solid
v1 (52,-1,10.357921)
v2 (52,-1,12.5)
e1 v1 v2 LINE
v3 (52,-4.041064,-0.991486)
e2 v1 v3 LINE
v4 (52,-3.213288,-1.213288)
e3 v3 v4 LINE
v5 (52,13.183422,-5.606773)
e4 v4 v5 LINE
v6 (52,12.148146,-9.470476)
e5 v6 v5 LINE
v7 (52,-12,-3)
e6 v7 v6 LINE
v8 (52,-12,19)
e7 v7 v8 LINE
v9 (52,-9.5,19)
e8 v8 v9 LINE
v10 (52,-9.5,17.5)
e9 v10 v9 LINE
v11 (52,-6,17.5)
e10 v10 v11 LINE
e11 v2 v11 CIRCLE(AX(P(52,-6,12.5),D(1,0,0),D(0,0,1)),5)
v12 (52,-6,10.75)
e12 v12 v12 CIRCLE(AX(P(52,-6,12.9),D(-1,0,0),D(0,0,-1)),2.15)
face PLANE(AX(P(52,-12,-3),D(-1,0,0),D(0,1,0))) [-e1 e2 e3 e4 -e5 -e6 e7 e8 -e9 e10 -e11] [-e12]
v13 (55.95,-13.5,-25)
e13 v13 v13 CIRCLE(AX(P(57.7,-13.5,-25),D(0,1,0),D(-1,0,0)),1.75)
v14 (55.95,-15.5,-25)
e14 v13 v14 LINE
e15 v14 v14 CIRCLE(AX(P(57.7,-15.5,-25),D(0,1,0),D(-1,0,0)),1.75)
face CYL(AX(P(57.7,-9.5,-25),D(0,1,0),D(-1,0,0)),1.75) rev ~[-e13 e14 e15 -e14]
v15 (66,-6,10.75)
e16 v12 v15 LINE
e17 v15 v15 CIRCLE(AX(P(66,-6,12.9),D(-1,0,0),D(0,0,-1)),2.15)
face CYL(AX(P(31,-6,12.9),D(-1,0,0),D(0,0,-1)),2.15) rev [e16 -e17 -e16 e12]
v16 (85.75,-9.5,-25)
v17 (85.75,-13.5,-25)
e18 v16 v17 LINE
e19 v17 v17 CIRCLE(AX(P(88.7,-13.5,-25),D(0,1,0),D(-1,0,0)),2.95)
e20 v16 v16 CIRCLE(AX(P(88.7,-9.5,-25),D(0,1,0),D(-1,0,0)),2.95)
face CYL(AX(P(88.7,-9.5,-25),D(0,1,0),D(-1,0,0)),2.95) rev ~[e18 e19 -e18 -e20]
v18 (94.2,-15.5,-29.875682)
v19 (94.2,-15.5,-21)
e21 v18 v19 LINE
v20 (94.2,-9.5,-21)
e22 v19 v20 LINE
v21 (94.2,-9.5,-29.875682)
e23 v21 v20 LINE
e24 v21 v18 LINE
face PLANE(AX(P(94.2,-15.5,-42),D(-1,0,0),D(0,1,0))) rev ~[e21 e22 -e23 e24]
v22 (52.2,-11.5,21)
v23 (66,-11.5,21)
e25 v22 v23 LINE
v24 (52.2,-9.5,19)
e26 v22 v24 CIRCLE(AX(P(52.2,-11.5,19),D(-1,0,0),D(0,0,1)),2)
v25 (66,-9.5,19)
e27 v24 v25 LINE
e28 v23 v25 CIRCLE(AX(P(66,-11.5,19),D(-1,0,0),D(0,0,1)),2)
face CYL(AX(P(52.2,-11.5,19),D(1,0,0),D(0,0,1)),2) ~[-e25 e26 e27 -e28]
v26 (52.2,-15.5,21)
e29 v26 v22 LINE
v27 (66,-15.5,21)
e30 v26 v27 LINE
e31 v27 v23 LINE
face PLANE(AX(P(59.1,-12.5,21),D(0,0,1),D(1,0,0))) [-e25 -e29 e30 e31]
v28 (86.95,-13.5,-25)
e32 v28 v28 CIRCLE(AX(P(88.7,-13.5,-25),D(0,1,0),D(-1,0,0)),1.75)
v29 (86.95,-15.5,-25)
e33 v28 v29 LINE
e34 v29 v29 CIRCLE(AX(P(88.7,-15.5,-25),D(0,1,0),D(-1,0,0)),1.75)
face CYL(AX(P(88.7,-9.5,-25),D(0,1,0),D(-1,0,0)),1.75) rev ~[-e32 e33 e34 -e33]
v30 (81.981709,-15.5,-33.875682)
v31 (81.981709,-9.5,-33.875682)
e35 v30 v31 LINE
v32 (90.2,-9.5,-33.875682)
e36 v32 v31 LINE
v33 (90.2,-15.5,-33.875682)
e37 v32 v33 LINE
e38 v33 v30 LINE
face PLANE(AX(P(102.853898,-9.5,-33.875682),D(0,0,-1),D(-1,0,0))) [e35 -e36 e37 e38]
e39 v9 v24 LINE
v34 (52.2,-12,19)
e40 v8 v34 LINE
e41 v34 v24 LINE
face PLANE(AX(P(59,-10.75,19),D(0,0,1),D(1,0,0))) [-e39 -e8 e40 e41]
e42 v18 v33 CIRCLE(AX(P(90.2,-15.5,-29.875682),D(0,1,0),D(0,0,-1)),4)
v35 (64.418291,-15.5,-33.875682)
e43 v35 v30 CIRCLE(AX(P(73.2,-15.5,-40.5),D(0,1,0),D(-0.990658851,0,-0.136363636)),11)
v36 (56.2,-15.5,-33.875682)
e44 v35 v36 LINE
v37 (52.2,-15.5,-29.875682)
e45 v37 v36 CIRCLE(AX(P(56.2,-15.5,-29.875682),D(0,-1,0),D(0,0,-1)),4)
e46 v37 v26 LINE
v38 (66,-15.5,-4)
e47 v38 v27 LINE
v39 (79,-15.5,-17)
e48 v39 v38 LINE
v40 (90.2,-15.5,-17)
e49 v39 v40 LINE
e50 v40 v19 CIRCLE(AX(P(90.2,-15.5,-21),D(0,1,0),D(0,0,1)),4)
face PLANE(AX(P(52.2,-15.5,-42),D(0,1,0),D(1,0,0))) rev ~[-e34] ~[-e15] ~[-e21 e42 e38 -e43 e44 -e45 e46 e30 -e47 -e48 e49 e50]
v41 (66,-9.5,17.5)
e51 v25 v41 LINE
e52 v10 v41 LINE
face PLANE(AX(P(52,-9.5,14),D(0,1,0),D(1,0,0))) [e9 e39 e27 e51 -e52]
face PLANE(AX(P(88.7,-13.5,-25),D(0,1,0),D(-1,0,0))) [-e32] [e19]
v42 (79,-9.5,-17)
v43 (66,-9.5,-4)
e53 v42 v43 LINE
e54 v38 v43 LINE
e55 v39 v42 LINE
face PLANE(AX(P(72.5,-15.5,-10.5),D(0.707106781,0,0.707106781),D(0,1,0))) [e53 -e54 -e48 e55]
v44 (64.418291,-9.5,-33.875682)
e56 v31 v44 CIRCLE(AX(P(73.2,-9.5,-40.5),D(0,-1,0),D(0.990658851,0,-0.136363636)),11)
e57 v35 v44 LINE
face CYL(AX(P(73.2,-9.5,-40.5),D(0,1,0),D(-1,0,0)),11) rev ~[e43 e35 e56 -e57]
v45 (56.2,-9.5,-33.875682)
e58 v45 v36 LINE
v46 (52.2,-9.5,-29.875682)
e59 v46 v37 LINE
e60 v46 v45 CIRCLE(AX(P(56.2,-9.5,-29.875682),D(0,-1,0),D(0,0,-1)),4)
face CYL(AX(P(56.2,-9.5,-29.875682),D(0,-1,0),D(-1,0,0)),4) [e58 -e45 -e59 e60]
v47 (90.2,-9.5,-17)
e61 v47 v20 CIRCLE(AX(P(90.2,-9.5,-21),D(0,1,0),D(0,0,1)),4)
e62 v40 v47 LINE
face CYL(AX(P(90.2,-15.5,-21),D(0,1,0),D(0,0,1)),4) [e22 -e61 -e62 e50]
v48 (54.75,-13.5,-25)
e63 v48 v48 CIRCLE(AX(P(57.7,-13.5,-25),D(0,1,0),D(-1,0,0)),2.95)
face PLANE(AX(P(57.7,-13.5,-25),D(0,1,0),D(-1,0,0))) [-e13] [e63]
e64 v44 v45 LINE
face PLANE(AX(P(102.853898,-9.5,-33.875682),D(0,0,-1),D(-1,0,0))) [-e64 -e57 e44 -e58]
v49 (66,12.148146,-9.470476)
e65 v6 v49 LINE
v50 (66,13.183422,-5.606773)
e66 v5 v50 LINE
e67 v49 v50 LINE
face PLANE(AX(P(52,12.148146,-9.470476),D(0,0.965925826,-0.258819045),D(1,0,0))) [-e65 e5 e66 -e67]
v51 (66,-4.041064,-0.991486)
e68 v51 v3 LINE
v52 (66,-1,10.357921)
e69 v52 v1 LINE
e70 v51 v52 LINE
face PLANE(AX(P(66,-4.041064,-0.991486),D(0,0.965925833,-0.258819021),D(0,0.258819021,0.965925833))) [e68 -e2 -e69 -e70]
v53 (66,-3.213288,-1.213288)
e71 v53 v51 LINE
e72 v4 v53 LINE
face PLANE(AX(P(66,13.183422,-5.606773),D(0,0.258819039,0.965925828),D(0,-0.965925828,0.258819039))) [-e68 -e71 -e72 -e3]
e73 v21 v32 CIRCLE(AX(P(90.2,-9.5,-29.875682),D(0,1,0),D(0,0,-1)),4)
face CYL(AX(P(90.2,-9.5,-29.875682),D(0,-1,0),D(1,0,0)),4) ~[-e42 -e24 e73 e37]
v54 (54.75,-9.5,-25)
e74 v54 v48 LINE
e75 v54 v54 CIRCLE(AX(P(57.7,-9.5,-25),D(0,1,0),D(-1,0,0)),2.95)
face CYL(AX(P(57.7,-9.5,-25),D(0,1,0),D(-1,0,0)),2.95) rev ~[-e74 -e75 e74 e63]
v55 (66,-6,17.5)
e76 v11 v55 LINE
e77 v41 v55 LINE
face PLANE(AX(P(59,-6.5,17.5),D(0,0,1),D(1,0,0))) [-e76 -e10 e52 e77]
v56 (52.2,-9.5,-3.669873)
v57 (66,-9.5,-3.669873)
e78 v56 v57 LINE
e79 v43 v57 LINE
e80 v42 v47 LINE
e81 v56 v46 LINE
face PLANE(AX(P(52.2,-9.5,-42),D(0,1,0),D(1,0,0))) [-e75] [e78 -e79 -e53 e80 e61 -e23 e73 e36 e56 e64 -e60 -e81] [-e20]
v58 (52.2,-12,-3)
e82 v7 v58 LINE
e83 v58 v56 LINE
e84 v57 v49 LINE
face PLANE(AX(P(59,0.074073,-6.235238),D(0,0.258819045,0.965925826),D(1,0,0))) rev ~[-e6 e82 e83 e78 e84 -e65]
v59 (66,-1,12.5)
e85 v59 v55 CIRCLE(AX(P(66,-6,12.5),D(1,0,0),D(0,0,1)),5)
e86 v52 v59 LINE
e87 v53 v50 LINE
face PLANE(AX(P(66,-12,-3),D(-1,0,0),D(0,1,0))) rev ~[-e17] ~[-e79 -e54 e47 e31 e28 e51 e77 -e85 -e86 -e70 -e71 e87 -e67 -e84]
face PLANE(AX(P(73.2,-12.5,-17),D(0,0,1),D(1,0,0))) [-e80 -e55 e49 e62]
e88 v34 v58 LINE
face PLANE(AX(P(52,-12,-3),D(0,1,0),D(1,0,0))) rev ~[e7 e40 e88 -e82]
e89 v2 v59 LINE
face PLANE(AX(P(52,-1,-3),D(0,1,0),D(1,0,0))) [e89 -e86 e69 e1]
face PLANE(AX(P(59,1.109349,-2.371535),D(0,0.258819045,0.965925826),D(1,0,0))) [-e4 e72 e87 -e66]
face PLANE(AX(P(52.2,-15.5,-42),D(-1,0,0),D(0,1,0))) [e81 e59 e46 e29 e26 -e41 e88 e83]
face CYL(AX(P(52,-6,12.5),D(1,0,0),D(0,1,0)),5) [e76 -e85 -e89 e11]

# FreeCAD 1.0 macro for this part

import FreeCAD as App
import Part
import Sketcher

V = App.Vector
Q = App.Units.Quantity


def edges_at(feature, points):
    """Names of the edges that pass closest to the given points."""
    edges = feature.Shape.Edges
    near = lambda p: min(range(len(edges)), key=lambda i: edges[i].distToShape(Part.Vertex(*p))[0])
    return sorted({f"Edge{near(p) + 1}" for p in points})


def add_polygon(sketch, points):
    """Adds a closed chain of lines whose ends are joined by coincident constraints."""
    first, n = sketch.GeometryCount, len(points)
    for a, b in zip(points, points[1:] + points[:1]):
        sketch.addGeometry(Part.LineSegment(App.Vector(*a, 0), App.Vector(*b, 0)), False)
    for i in range(n):
        sketch.addConstraint(Sketcher.Constraint("Coincident", first + i, 2, first + (i + 1) % n, 1))

doc = App.newDocument("Part")
body = doc.addObject("PartDesign::Body", "Body")

sketch1 = doc.addObject("Sketcher::SketchObject", "Sketch")
body.addObject(sketch1)
sketch1.AttachmentSupport = (doc.XY_Plane, [""])
sketch1.MapMode = "FlatFace"
sketch1.addGeometry(Part.Circle(V(0, 0, 0), V(0, 0, 1), 2.1), False)
sketch1.addConstraint(Sketcher.Constraint("Coincident", 0, 3, -1, 1))
sketch1.addConstraint(Sketcher.Constraint("Diameter", 0, Q("4.3 mm")))
pad1 = doc.addObject("PartDesign::Pad", "Pad")
body.addObject(pad1)
pad1.Profile = sketch1
pad1.Length = 50
body2 = doc.addObject("PartDesign::Body", "Body001")
doc.recompute()

body.Placement = App.Placement(V(0, 0, 0), App.Rotation(V(0, 1, 0), 90))
boolean = doc.addObject("PartDesign::Boolean", "Boolean")
body2.addObject(boolean)
boolean.Type = "Fuse"
boolean.addObjects([body])
body3 = doc.addObject("PartDesign::Body", "Body002")
doc.recompute()

body2.Placement = App.Placement(V(31, -6, 12.9), App.Rotation(V(0, 0, 1), 0))
boolean2 = doc.addObject("PartDesign::Boolean", "Boolean001")
body3.addObject(boolean2)
boolean2.Type = "Fuse"
boolean2.addObjects([body2])
body4 = doc.addObject("PartDesign::Body", "Body003")

sketch2 = doc.addObject("Sketcher::SketchObject", "Sketch001")
body4.addObject(sketch2)
sketch2.AttachmentSupport = (doc.getObject("XY_Plane003"), [""])
sketch2.MapMode = "FlatFace"
sketch2.AttachmentOffset = App.Placement(V(0, 0, -3), App.Rotation())
add_polygon(sketch2, [(52, -1), (52, -12), (66, -12), (66, -1)])
sketch2.addConstraint(Sketcher.Constraint("Vertical", 0))
sketch2.addConstraint(Sketcher.Constraint("Horizontal", 1))
sketch2.addConstraint(Sketcher.Constraint("Vertical", 2))
sketch2.addConstraint(Sketcher.Constraint("Horizontal", 3))
sketch2.addConstraint(Sketcher.Constraint("DistanceX", 1, 1, 1, 2, Q("14 mm")))
sketch2.addConstraint(Sketcher.Constraint("DistanceY", 0, 2, 0, 1, Q("11 mm")))
sketch2.addConstraint(Sketcher.Constraint("DistanceX", -1, 1, 0, 2, Q("52 mm")))
sketch2.addConstraint(Sketcher.Constraint("DistanceY", 0, 2, -1, 1, Q("12 mm")))
pad2 = doc.addObject("PartDesign::Pad", "Pad001")
body4.addObject(pad2)
pad2.Profile = sketch2
pad2.Length = 20.5
doc.recompute()

chamfer = doc.addObject("PartDesign::Chamfer", "Chamfer")
body4.addObject(chamfer)
chamfer.Base = (pad2, edges_at(pad2, [(59, -1, -3)]))
chamfer.Size = 4
doc.recompute()

fillet = doc.addObject("PartDesign::Fillet", "Fillet")
body4.addObject(fillet)
fillet.Base = (chamfer, edges_at(chamfer, [(59, -1, 17.5)]))
fillet.Radius = 5
body5 = doc.addObject("PartDesign::Body", "Body004")

sketch3 = doc.addObject("Sketcher::SketchObject", "Sketch002")
body5.addObject(sketch3)
sketch3.AttachmentSupport = (doc.getObject("XY_Plane004"), [""])
sketch3.MapMode = "FlatFace"
add_polygon(sketch3, [(0, 25), (0, 0), (14, 0), (14, 25)])
sketch3.addConstraint(Sketcher.Constraint("Vertical", 0))
sketch3.addConstraint(Sketcher.Constraint("Horizontal", 1))
sketch3.addConstraint(Sketcher.Constraint("Vertical", 2))
sketch3.addConstraint(Sketcher.Constraint("Horizontal", 3))
sketch3.addConstraint(Sketcher.Constraint("Coincident", 0, 2, -1, 1))
sketch3.addConstraint(Sketcher.Constraint("DistanceX", 1, 1, 1, 2, Q("14 mm")))
sketch3.addConstraint(Sketcher.Constraint("DistanceY", 0, 2, 0, 1, Q("25 mm")))
pad3 = doc.addObject("PartDesign::Pad", "Pad002")
body5.addObject(pad3)
pad3.Profile = sketch3
pad3.Length = 4
body6 = doc.addObject("PartDesign::Body", "Body005")
doc.recompute()

body5.Placement = App.Placement(V(0, 0, 0), App.Rotation(V(1, 0, 0), 345))
boolean3 = doc.addObject("PartDesign::Boolean", "Boolean002")
body6.addObject(boolean3)
boolean3.Type = "Fuse"
boolean3.addObjects([body5])
body7 = doc.addObject("PartDesign::Body", "Body006")
doc.recompute()

body6.Placement = App.Placement(V(52, -12, -3), App.Rotation(V(0, 0, 1), 0))
boolean4 = doc.addObject("PartDesign::Boolean", "Boolean003")
body7.addObject(boolean4)
boolean4.Type = "Fuse"
boolean4.addObjects([body6])
body8 = doc.addObject("PartDesign::Body", "Body007")

sketch4 = doc.addObject("Sketcher::SketchObject", "Sketch003")
body8.addObject(sketch4)
sketch4.AttachmentSupport = (doc.getObject("XY_Plane007"), [""])
sketch4.MapMode = "FlatFace"
sketch4.AttachmentOffset = App.Placement(V(0, 0, 14), App.Rotation())
add_polygon(sketch4, [(52, -9.5), (52, -12), (66, -12), (66, -9.5)])
sketch4.addConstraint(Sketcher.Constraint("Vertical", 0))
sketch4.addConstraint(Sketcher.Constraint("Horizontal", 1))
sketch4.addConstraint(Sketcher.Constraint("Vertical", 2))
sketch4.addConstraint(Sketcher.Constraint("Horizontal", 3))
sketch4.addConstraint(Sketcher.Constraint("DistanceX", 1, 1, 1, 2, Q("14 mm")))
sketch4.addConstraint(Sketcher.Constraint("DistanceY", 0, 2, 0, 1, Q("2.5 mm")))
sketch4.addConstraint(Sketcher.Constraint("DistanceX", -1, 1, 0, 2, Q("52 mm")))
sketch4.addConstraint(Sketcher.Constraint("DistanceY", 0, 2, -1, 1, Q("12 mm")))
pad4 = doc.addObject("PartDesign::Pad", "Pad003")
body8.addObject(pad4)
pad4.Profile = sketch4
pad4.Length = 5
doc.recompute()

boolean5 = doc.addObject("PartDesign::Boolean", "Boolean004")
body8.addObject(boolean5)
boolean5.Type = "Fuse"
boolean5.addObjects([body4])
doc.recompute()

boolean6 = doc.addObject("PartDesign::Boolean", "Boolean005")
body8.addObject(boolean6)
boolean6.Type = "Fuse"
boolean6.addObjects([body7])
doc.recompute()

boolean7 = doc.addObject("PartDesign::Boolean", "Boolean006")
body8.addObject(boolean7)
boolean7.Type = "Cut"
boolean7.addObjects([body3])

sketch5 = doc.addObject("Sketcher::SketchObject", "Sketch004")
body8.addObject(sketch5)
sketch5.AttachmentSupport = (doc.getObject("YZ_Plane007"), [""])
sketch5.MapMode = "FlatFace"
sketch5.AttachmentOffset = App.Placement(V(0, 0, 66), App.Rotation())
add_polygon(sketch5, [(-4, -1), (13, -6), (0, 13)])
sketch5.addConstraint(Sketcher.Constraint("Perpendicular", 0, 2))
sketch5.addConstraint(Sketcher.Constraint("Angle", 0, Q("-15 deg")))
sketch5.addConstraint(Sketcher.Constraint("Distance", 1, Q("22.696 mm")))
sketch5.addConstraint(Sketcher.Constraint("Distance", 0, Q("17.8321 mm")))
sketch5.addConstraint(Sketcher.Constraint("DistanceX", -1, 1, 0, 2, Q("13.183422 mm")))
sketch5.addConstraint(Sketcher.Constraint("DistanceY", 0, 2, -1, 1, Q("5.606773 mm")))
pocket1 = doc.addObject("PartDesign::Pocket", "Pocket")
body8.addObject(pocket1)
pocket1.Profile = sketch5
pocket1.Length = 15
body9 = doc.addObject("PartDesign::Body", "Body008")

sketch6 = doc.addObject("Sketcher::SketchObject", "Sketch005")
body9.addObject(sketch6)
sketch6.AttachmentSupport = (doc.getObject("XY_Plane008"), [""])
sketch6.MapMode = "FlatFace"
sketch6.AttachmentOffset = App.Placement(V(0, 0, -42), App.Rotation())
add_polygon(sketch6, [(52, -10), (52, -16), (94, -16), (94, -10)])
sketch6.addConstraint(Sketcher.Constraint("Vertical", 0))
sketch6.addConstraint(Sketcher.Constraint("Horizontal", 1))
sketch6.addConstraint(Sketcher.Constraint("Vertical", 2))
sketch6.addConstraint(Sketcher.Constraint("Horizontal", 3))
sketch6.addConstraint(Sketcher.Constraint("DistanceX", 1, 1, 1, 2, Q("42 mm")))
sketch6.addConstraint(Sketcher.Constraint("DistanceY", 0, 2, 0, 1, Q("6 mm")))
sketch6.addConstraint(Sketcher.Constraint("DistanceX", -1, 1, 0, 2, Q("52.2 mm")))
sketch6.addConstraint(Sketcher.Constraint("DistanceY", 0, 2, -1, 1, Q("15.5 mm")))
pad5 = doc.addObject("PartDesign::Pad", "Pad004")
body9.addObject(pad5)
pad5.Profile = sketch6
pad5.Length = 25

sketch7 = doc.addObject("Sketcher::SketchObject", "Sketch006")
body9.addObject(sketch7)
sketch7.AttachmentSupport = (doc.getObject("XZ_Plane008"), [""])
sketch7.MapMode = "FlatFace"
sketch7.AttachmentOffset = App.Placement(V(0, 0, 9.5), App.Rotation())
sketch7.addGeometry(Part.Circle(V(73.2, -40.5, 0), V(0, 0, 1), 11), False)
sketch7.addGeometry(Part.Circle(V(88.7, -25, 0), V(0, 0, 1), 1.8), False)
sketch7.addGeometry(Part.Circle(V(57.7, -25, 0), V(0, 0, 1), 1.8), False)
sketch7.addConstraint(Sketcher.Constraint("Equal", 1, 2))
sketch7.addConstraint(Sketcher.Constraint("Horizontal", 1, 3, 2, 3))
sketch7.addConstraint(Sketcher.Constraint("Diameter", 0, Q("22 mm")))
sketch7.addConstraint(Sketcher.Constraint("Diameter", 1, Q("3.5 mm")))
sketch7.addConstraint(Sketcher.Constraint("DistanceY", 1, 3, -1, 1, Q("25 mm")))
sketch7.addConstraint(Sketcher.Constraint("DistanceX", 2, 3, 1, 3, Q("31 mm")))
sketch7.addConstraint(Sketcher.Constraint("DistanceX", -1, 1, 0, 3, Q("73.2 mm")))
sketch7.addConstraint(Sketcher.Constraint("DistanceY", 0, 3, -1, 1, Q("40.5 mm")))
sketch7.addConstraint(Sketcher.Constraint("DistanceX", -1, 1, 1, 3, Q("88.7 mm")))
pocket2 = doc.addObject("PartDesign::Pocket", "Pocket001")
body9.addObject(pocket2)
pocket2.Profile = sketch7
pocket2.Length = 6
pocket2.Reversed = True

sketch8 = doc.addObject("Sketcher::SketchObject", "Sketch007")
body9.addObject(sketch8)
sketch8.AttachmentSupport = (doc.getObject("XZ_Plane008"), [""])
sketch8.MapMode = "FlatFace"
sketch8.AttachmentOffset = App.Placement(V(0, 0, 9.5), App.Rotation())
add_polygon(sketch8, [(103, -34), (103, -59), (40, -59), (40, -34)])
sketch8.addConstraint(Sketcher.Constraint("Vertical", 0))
sketch8.addConstraint(Sketcher.Constraint("Horizontal", 1))
sketch8.addConstraint(Sketcher.Constraint("Vertical", 2))
sketch8.addConstraint(Sketcher.Constraint("Horizontal", 3))
sketch8.addConstraint(Sketcher.Constraint("DistanceX", -1, 1, 0, 2, Q("102.853898 mm")))
sketch8.addConstraint(Sketcher.Constraint("DistanceX", 1, 2, 1, 1, Q("62.382877 mm")))
sketch8.addConstraint(Sketcher.Constraint("DistanceY", 0, 2, 0, 1, Q("25.148186 mm")))
sketch8.addConstraint(Sketcher.Constraint("DistanceY", 2, 2, -1, 1, Q("33.875682 mm")))
pocket3 = doc.addObject("PartDesign::Pocket", "Pocket002")
body9.addObject(pocket3)
pocket3.Profile = sketch8
pocket3.Length = 6
pocket3.Reversed = True
body10 = doc.addObject("PartDesign::Body", "Body009")

sketch9 = doc.addObject("Sketcher::SketchObject", "Sketch008")
body10.addObject(sketch9)
sketch9.AttachmentSupport = (doc.getObject("XY_Plane009"), [""])
sketch9.MapMode = "FlatFace"
sketch9.AttachmentOffset = App.Placement(V(0, 0, -21), App.Rotation())
add_polygon(sketch9, [(52, -10), (52, -16), (66, -16), (66, -10)])
sketch9.addConstraint(Sketcher.Constraint("Vertical", 0))
sketch9.addConstraint(Sketcher.Constraint("Horizontal", 1))
sketch9.addConstraint(Sketcher.Constraint("Vertical", 2))
sketch9.addConstraint(Sketcher.Constraint("Horizontal", 3))
sketch9.addConstraint(Sketcher.Constraint("DistanceY", 0, 2, 0, 1, Q("6 mm")))
sketch9.addConstraint(Sketcher.Constraint("DistanceX", 1, 1, 1, 2, Q("13.8 mm")))
sketch9.addConstraint(Sketcher.Constraint("DistanceX", -1, 1, 1, 2, Q("66 mm")))
sketch9.addConstraint(Sketcher.Constraint("DistanceY", 0, 2, -1, 1, Q("15.5 mm")))
pad6 = doc.addObject("PartDesign::Pad", "Pad005")
body10.addObject(pad6)
pad6.Profile = sketch9
pad6.Length = 42
doc.recompute()

boolean8 = doc.addObject("PartDesign::Boolean", "Boolean007")
body10.addObject(boolean8)
boolean8.Type = "Fuse"
boolean8.addObjects([body8])
doc.recompute()

boolean9 = doc.addObject("PartDesign::Boolean", "Boolean008")
body10.addObject(boolean9)
boolean9.Type = "Fuse"
boolean9.addObjects([body9])
doc.recompute()

chamfer2 = doc.addObject("PartDesign::Chamfer", "Chamfer001")
body10.addObject(chamfer2)
chamfer2.Base = (boolean9, edges_at(boolean9, [(66, -12.5, -17)]))
chamfer2.Size = 13
doc.recompute()

fillet2 = doc.addObject("PartDesign::Fillet", "Fillet001")
body10.addObject(fillet2)
fillet2.Base = (chamfer2, edges_at(chamfer2, [(94.2, -12.5, -17), (94.2, -12.5, -33.876), (52.2, -12.5, -33.876)]))
fillet2.Radius = 4
doc.recompute()

fillet3 = doc.addObject("PartDesign::Fillet", "Fillet002")
body10.addObject(fillet3)
fillet3.Base = (fillet2, edges_at(fillet2, [(59.1, -9.5, 21)]))
fillet3.Radius = 2

sketch10 = doc.addObject("Sketcher::SketchObject", "Sketch009")
body10.addObject(sketch10)
sketch10.AttachmentSupport = (doc.getObject("XZ_Plane009"), [""])
sketch10.MapMode = "FlatFace"
sketch10.AttachmentOffset = App.Placement(V(0, 0, 9.5), App.Rotation())
sketch10.addGeometry(Part.Circle(V(88.7, -25, 0), V(0, 0, 1), 3), False)
sketch10.addGeometry(Part.Circle(V(57.7, -25, 0), V(0, 0, 1), 3), False)
sketch10.addConstraint(Sketcher.Constraint("Equal", 0, 1))
sketch10.addConstraint(Sketcher.Constraint("Horizontal", 0, 3, 1, 3))
sketch10.addConstraint(Sketcher.Constraint("Diameter", 0, Q("5.9 mm")))
sketch10.addConstraint(Sketcher.Constraint("DistanceY", 0, 3, -1, 1, Q("25 mm")))
sketch10.addConstraint(Sketcher.Constraint("DistanceX", 1, 3, 0, 3, Q("31 mm")))
sketch10.addConstraint(Sketcher.Constraint("DistanceX", -1, 1, 0, 3, Q("88.7 mm")))
pocket4 = doc.addObject("PartDesign::Pocket", "Pocket003")
body10.addObject(pocket4)
pocket4.Profile = sketch10
pocket4.Length = 4
pocket4.Reversed = True

doc.recompute()
